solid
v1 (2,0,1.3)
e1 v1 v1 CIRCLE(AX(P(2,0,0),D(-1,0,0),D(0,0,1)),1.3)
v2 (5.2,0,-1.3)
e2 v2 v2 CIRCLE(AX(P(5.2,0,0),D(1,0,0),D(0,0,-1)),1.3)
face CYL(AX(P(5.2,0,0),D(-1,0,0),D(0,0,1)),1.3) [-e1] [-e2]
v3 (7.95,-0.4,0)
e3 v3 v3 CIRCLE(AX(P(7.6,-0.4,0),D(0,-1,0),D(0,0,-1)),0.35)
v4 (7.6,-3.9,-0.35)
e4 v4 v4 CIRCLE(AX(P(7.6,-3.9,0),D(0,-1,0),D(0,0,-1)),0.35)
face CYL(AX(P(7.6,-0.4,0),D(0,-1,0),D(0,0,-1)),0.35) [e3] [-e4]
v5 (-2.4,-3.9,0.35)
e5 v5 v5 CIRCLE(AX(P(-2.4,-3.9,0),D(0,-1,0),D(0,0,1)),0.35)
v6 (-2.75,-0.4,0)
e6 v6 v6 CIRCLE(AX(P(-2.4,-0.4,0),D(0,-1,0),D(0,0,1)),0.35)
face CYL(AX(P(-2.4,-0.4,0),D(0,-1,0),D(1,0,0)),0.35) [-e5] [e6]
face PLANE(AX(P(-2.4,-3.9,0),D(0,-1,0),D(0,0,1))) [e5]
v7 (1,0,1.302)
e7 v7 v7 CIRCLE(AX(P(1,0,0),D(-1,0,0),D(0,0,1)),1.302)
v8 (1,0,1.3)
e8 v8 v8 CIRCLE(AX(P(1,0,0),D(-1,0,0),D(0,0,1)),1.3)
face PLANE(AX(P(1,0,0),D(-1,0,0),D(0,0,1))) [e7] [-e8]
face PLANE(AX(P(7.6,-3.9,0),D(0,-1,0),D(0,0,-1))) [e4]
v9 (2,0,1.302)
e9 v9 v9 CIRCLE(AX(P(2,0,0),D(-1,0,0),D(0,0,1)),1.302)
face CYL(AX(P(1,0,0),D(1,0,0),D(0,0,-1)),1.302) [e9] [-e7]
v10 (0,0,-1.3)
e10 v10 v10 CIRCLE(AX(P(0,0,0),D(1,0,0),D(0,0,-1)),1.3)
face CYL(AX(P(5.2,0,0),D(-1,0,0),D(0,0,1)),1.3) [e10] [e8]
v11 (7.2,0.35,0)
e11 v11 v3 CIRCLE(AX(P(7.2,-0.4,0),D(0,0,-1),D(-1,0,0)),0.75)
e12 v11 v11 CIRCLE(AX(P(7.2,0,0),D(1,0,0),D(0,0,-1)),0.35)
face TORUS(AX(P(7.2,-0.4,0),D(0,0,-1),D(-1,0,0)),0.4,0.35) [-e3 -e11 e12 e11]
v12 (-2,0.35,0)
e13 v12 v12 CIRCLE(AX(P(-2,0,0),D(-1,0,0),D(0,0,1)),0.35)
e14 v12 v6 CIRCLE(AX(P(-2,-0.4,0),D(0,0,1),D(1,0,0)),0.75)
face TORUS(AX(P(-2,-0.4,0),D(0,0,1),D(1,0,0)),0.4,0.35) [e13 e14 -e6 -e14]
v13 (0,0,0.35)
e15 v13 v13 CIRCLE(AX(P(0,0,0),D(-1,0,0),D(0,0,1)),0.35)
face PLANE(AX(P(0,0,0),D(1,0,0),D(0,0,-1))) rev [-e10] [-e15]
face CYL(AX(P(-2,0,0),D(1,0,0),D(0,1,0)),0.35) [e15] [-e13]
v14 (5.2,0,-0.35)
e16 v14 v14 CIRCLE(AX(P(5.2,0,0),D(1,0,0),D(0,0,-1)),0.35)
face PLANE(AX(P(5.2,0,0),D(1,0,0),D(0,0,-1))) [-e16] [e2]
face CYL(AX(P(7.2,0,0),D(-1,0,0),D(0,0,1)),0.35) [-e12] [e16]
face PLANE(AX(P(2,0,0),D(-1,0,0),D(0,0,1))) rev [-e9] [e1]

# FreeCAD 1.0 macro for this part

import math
import FreeCAD as App
import Part
import Sketcher
Q = App.Units.Quantity

doc = App.newDocument("Part")
body = doc.addObject("PartDesign::Body", "Body")

# Sketch on YZ plane
sketch1 = body.newObject("Sketcher::SketchObject", "Sketch")
sketch1.AttachmentSupport = (doc.getObject("YZ_Plane"), [""])
sketch1.MapMode = "FlatFace"
sketch1.addGeometry(Part.Circle(App.Vector(0, 0, 0), App.Vector(0, 0, 1), 1.3), False)
sketch1.addConstraint(Sketcher.Constraint("Coincident", 0, 3, -1, 1))
sketch1.addConstraint(Sketcher.Constraint("Diameter", 0, Q("2.6 mm")))
pad1 = body.newObject("PartDesign::Pad", "Pad")
pad1.Profile = sketch1
pad1.Length = 5.2

# Sketch on YZ plane
sketch2 = body.newObject("Sketcher::SketchObject", "Sketch001")
sketch2.AttachmentSupport = (doc.getObject("YZ_Plane"), [""])
sketch2.MapMode = "FlatFace"
sketch2.AttachmentOffset = App.Placement(App.Vector(0, 0, 2), App.Rotation())
sketch2.addGeometry(Part.Circle(App.Vector(0, 0, 0), App.Vector(0, 0, 1), 1.302), False)
sketch2.addConstraint(Sketcher.Constraint("Coincident", 0, 3, -1, 1))
sketch2.addConstraint(Sketcher.Constraint("Diameter", 0, Q("2.604 mm")))
pad2 = body.newObject("PartDesign::Pad", "Pad001")
pad2.Profile = sketch2
pad2.Length = 1
pad2.Reversed = True

# Sketch on YZ plane
sketch3 = body.newObject("Sketcher::SketchObject", "Sketch002")
sketch3.AttachmentSupport = (doc.getObject("YZ_Plane"), [""])
sketch3.MapMode = "FlatFace"
sketch3.AttachmentOffset = App.Placement(App.Vector(0, 0, 5.2), App.Rotation())
sketch3.addGeometry(Part.Circle(App.Vector(0, 0, 0), App.Vector(0, 0, 1), 0.35), False)
sketch3.addConstraint(Sketcher.Constraint("Coincident", 0, 3, -1, 1))
sketch3.addConstraint(Sketcher.Constraint("Diameter", 0, Q("0.7 mm")))

# Sketch on XY plane
sketch4 = body.newObject("Sketcher::SketchObject", "Sketch003")
sketch4.AttachmentSupport = (doc.getObject("XY_Plane"), [""])
sketch4.MapMode = "FlatFace"
sketch4.addGeometry(Part.LineSegment(App.Vector(5.2, 0, 0), App.Vector(7.2, 0, 0)), False)
sketch4.addGeometry(Part.ArcOfCircle(Part.Circle(App.Vector(7.2, -0.4, 0), App.Vector(0, 0, 1), 0.4), math.radians(0), math.radians(90)), False)
sketch4.addGeometry(Part.LineSegment(App.Vector(7.6, -0.4, 0), App.Vector(7.6, -3.9, 0)), False)
sketch4.addConstraint(Sketcher.Constraint("Tangent", 0, 2, 1, 2))
sketch4.addConstraint(Sketcher.Constraint("Tangent", 1, 1, 2, 1))
sketch4.addConstraint(Sketcher.Constraint("Horizontal", 0))
sketch4.addConstraint(Sketcher.Constraint("Vertical", 2))
sketch4.addConstraint(Sketcher.Constraint("PointOnObject", 0, 1, -1))
sketch4.addConstraint(Sketcher.Constraint("Radius", 1, Q("0.4 mm")))
sketch4.addConstraint(Sketcher.Constraint("DistanceX", 0, 1, 0, 2, Q("2 mm")))
sketch4.addConstraint(Sketcher.Constraint("DistanceY", 2, 2, 2, 1, Q("3.5 mm")))
sketch4.addConstraint(Sketcher.Constraint("DistanceX", -1, 1, 1, 3, Q("7.2 mm")))
doc.recompute()

additivepipe = body.newObject("PartDesign::AdditivePipe", "AdditivePipe")
additivepipe.Profile = sketch3
additivepipe.Spine = (sketch4, ["Edge1", "Edge2", "Edge3"])

# Sketch on YZ plane
sketch5 = body.newObject("Sketcher::SketchObject", "Sketch004")
sketch5.AttachmentSupport = (doc.getObject("YZ_Plane"), [""])
sketch5.MapMode = "FlatFace"
sketch5.addGeometry(Part.Circle(App.Vector(0, 0, 0), App.Vector(0, 0, 1), 0.35), False)
sketch5.addConstraint(Sketcher.Constraint("Coincident", 0, 3, -1, 1))
sketch5.addConstraint(Sketcher.Constraint("Diameter", 0, Q("0.7 mm")))

# Sketch on XY plane
sketch6 = body.newObject("Sketcher::SketchObject", "Sketch005")
sketch6.AttachmentSupport = (doc.getObject("XY_Plane"), [""])
sketch6.MapMode = "FlatFace"
sketch6.addGeometry(Part.LineSegment(App.Vector(0, 0, 0), App.Vector(-2, 0, 0)), False)
sketch6.addGeometry(Part.ArcOfCircle(Part.Circle(App.Vector(-2, -0.4, 0), App.Vector(0, 0, 1), 0.4), math.radians(90), math.radians(180)), False)
sketch6.addGeometry(Part.LineSegment(App.Vector(-2.4, -0.4, 0), App.Vector(-2.4, -3.9, 0)), False)
sketch6.addConstraint(Sketcher.Constraint("Tangent", 0, 2, 1, 1))
sketch6.addConstraint(Sketcher.Constraint("Tangent", 1, 2, 2, 1))
sketch6.addConstraint(Sketcher.Constraint("Horizontal", 0))
sketch6.addConstraint(Sketcher.Constraint("Vertical", 2))
sketch6.addConstraint(Sketcher.Constraint("Coincident", 0, 1, -1, 1))
sketch6.addConstraint(Sketcher.Constraint("Radius", 1, Q("0.4 mm")))
sketch6.addConstraint(Sketcher.Constraint("DistanceX", 0, 2, 0, 1, Q("2 mm")))
sketch6.addConstraint(Sketcher.Constraint("DistanceY", 2, 2, 2, 1, Q("3.5 mm")))
doc.recompute()

additivepipe2 = body.newObject("PartDesign::AdditivePipe", "AdditivePipe001")
additivepipe2.Profile = sketch5
additivepipe2.Spine = (sketch6, ["Edge1", "Edge2", "Edge3"])

doc.recompute()
